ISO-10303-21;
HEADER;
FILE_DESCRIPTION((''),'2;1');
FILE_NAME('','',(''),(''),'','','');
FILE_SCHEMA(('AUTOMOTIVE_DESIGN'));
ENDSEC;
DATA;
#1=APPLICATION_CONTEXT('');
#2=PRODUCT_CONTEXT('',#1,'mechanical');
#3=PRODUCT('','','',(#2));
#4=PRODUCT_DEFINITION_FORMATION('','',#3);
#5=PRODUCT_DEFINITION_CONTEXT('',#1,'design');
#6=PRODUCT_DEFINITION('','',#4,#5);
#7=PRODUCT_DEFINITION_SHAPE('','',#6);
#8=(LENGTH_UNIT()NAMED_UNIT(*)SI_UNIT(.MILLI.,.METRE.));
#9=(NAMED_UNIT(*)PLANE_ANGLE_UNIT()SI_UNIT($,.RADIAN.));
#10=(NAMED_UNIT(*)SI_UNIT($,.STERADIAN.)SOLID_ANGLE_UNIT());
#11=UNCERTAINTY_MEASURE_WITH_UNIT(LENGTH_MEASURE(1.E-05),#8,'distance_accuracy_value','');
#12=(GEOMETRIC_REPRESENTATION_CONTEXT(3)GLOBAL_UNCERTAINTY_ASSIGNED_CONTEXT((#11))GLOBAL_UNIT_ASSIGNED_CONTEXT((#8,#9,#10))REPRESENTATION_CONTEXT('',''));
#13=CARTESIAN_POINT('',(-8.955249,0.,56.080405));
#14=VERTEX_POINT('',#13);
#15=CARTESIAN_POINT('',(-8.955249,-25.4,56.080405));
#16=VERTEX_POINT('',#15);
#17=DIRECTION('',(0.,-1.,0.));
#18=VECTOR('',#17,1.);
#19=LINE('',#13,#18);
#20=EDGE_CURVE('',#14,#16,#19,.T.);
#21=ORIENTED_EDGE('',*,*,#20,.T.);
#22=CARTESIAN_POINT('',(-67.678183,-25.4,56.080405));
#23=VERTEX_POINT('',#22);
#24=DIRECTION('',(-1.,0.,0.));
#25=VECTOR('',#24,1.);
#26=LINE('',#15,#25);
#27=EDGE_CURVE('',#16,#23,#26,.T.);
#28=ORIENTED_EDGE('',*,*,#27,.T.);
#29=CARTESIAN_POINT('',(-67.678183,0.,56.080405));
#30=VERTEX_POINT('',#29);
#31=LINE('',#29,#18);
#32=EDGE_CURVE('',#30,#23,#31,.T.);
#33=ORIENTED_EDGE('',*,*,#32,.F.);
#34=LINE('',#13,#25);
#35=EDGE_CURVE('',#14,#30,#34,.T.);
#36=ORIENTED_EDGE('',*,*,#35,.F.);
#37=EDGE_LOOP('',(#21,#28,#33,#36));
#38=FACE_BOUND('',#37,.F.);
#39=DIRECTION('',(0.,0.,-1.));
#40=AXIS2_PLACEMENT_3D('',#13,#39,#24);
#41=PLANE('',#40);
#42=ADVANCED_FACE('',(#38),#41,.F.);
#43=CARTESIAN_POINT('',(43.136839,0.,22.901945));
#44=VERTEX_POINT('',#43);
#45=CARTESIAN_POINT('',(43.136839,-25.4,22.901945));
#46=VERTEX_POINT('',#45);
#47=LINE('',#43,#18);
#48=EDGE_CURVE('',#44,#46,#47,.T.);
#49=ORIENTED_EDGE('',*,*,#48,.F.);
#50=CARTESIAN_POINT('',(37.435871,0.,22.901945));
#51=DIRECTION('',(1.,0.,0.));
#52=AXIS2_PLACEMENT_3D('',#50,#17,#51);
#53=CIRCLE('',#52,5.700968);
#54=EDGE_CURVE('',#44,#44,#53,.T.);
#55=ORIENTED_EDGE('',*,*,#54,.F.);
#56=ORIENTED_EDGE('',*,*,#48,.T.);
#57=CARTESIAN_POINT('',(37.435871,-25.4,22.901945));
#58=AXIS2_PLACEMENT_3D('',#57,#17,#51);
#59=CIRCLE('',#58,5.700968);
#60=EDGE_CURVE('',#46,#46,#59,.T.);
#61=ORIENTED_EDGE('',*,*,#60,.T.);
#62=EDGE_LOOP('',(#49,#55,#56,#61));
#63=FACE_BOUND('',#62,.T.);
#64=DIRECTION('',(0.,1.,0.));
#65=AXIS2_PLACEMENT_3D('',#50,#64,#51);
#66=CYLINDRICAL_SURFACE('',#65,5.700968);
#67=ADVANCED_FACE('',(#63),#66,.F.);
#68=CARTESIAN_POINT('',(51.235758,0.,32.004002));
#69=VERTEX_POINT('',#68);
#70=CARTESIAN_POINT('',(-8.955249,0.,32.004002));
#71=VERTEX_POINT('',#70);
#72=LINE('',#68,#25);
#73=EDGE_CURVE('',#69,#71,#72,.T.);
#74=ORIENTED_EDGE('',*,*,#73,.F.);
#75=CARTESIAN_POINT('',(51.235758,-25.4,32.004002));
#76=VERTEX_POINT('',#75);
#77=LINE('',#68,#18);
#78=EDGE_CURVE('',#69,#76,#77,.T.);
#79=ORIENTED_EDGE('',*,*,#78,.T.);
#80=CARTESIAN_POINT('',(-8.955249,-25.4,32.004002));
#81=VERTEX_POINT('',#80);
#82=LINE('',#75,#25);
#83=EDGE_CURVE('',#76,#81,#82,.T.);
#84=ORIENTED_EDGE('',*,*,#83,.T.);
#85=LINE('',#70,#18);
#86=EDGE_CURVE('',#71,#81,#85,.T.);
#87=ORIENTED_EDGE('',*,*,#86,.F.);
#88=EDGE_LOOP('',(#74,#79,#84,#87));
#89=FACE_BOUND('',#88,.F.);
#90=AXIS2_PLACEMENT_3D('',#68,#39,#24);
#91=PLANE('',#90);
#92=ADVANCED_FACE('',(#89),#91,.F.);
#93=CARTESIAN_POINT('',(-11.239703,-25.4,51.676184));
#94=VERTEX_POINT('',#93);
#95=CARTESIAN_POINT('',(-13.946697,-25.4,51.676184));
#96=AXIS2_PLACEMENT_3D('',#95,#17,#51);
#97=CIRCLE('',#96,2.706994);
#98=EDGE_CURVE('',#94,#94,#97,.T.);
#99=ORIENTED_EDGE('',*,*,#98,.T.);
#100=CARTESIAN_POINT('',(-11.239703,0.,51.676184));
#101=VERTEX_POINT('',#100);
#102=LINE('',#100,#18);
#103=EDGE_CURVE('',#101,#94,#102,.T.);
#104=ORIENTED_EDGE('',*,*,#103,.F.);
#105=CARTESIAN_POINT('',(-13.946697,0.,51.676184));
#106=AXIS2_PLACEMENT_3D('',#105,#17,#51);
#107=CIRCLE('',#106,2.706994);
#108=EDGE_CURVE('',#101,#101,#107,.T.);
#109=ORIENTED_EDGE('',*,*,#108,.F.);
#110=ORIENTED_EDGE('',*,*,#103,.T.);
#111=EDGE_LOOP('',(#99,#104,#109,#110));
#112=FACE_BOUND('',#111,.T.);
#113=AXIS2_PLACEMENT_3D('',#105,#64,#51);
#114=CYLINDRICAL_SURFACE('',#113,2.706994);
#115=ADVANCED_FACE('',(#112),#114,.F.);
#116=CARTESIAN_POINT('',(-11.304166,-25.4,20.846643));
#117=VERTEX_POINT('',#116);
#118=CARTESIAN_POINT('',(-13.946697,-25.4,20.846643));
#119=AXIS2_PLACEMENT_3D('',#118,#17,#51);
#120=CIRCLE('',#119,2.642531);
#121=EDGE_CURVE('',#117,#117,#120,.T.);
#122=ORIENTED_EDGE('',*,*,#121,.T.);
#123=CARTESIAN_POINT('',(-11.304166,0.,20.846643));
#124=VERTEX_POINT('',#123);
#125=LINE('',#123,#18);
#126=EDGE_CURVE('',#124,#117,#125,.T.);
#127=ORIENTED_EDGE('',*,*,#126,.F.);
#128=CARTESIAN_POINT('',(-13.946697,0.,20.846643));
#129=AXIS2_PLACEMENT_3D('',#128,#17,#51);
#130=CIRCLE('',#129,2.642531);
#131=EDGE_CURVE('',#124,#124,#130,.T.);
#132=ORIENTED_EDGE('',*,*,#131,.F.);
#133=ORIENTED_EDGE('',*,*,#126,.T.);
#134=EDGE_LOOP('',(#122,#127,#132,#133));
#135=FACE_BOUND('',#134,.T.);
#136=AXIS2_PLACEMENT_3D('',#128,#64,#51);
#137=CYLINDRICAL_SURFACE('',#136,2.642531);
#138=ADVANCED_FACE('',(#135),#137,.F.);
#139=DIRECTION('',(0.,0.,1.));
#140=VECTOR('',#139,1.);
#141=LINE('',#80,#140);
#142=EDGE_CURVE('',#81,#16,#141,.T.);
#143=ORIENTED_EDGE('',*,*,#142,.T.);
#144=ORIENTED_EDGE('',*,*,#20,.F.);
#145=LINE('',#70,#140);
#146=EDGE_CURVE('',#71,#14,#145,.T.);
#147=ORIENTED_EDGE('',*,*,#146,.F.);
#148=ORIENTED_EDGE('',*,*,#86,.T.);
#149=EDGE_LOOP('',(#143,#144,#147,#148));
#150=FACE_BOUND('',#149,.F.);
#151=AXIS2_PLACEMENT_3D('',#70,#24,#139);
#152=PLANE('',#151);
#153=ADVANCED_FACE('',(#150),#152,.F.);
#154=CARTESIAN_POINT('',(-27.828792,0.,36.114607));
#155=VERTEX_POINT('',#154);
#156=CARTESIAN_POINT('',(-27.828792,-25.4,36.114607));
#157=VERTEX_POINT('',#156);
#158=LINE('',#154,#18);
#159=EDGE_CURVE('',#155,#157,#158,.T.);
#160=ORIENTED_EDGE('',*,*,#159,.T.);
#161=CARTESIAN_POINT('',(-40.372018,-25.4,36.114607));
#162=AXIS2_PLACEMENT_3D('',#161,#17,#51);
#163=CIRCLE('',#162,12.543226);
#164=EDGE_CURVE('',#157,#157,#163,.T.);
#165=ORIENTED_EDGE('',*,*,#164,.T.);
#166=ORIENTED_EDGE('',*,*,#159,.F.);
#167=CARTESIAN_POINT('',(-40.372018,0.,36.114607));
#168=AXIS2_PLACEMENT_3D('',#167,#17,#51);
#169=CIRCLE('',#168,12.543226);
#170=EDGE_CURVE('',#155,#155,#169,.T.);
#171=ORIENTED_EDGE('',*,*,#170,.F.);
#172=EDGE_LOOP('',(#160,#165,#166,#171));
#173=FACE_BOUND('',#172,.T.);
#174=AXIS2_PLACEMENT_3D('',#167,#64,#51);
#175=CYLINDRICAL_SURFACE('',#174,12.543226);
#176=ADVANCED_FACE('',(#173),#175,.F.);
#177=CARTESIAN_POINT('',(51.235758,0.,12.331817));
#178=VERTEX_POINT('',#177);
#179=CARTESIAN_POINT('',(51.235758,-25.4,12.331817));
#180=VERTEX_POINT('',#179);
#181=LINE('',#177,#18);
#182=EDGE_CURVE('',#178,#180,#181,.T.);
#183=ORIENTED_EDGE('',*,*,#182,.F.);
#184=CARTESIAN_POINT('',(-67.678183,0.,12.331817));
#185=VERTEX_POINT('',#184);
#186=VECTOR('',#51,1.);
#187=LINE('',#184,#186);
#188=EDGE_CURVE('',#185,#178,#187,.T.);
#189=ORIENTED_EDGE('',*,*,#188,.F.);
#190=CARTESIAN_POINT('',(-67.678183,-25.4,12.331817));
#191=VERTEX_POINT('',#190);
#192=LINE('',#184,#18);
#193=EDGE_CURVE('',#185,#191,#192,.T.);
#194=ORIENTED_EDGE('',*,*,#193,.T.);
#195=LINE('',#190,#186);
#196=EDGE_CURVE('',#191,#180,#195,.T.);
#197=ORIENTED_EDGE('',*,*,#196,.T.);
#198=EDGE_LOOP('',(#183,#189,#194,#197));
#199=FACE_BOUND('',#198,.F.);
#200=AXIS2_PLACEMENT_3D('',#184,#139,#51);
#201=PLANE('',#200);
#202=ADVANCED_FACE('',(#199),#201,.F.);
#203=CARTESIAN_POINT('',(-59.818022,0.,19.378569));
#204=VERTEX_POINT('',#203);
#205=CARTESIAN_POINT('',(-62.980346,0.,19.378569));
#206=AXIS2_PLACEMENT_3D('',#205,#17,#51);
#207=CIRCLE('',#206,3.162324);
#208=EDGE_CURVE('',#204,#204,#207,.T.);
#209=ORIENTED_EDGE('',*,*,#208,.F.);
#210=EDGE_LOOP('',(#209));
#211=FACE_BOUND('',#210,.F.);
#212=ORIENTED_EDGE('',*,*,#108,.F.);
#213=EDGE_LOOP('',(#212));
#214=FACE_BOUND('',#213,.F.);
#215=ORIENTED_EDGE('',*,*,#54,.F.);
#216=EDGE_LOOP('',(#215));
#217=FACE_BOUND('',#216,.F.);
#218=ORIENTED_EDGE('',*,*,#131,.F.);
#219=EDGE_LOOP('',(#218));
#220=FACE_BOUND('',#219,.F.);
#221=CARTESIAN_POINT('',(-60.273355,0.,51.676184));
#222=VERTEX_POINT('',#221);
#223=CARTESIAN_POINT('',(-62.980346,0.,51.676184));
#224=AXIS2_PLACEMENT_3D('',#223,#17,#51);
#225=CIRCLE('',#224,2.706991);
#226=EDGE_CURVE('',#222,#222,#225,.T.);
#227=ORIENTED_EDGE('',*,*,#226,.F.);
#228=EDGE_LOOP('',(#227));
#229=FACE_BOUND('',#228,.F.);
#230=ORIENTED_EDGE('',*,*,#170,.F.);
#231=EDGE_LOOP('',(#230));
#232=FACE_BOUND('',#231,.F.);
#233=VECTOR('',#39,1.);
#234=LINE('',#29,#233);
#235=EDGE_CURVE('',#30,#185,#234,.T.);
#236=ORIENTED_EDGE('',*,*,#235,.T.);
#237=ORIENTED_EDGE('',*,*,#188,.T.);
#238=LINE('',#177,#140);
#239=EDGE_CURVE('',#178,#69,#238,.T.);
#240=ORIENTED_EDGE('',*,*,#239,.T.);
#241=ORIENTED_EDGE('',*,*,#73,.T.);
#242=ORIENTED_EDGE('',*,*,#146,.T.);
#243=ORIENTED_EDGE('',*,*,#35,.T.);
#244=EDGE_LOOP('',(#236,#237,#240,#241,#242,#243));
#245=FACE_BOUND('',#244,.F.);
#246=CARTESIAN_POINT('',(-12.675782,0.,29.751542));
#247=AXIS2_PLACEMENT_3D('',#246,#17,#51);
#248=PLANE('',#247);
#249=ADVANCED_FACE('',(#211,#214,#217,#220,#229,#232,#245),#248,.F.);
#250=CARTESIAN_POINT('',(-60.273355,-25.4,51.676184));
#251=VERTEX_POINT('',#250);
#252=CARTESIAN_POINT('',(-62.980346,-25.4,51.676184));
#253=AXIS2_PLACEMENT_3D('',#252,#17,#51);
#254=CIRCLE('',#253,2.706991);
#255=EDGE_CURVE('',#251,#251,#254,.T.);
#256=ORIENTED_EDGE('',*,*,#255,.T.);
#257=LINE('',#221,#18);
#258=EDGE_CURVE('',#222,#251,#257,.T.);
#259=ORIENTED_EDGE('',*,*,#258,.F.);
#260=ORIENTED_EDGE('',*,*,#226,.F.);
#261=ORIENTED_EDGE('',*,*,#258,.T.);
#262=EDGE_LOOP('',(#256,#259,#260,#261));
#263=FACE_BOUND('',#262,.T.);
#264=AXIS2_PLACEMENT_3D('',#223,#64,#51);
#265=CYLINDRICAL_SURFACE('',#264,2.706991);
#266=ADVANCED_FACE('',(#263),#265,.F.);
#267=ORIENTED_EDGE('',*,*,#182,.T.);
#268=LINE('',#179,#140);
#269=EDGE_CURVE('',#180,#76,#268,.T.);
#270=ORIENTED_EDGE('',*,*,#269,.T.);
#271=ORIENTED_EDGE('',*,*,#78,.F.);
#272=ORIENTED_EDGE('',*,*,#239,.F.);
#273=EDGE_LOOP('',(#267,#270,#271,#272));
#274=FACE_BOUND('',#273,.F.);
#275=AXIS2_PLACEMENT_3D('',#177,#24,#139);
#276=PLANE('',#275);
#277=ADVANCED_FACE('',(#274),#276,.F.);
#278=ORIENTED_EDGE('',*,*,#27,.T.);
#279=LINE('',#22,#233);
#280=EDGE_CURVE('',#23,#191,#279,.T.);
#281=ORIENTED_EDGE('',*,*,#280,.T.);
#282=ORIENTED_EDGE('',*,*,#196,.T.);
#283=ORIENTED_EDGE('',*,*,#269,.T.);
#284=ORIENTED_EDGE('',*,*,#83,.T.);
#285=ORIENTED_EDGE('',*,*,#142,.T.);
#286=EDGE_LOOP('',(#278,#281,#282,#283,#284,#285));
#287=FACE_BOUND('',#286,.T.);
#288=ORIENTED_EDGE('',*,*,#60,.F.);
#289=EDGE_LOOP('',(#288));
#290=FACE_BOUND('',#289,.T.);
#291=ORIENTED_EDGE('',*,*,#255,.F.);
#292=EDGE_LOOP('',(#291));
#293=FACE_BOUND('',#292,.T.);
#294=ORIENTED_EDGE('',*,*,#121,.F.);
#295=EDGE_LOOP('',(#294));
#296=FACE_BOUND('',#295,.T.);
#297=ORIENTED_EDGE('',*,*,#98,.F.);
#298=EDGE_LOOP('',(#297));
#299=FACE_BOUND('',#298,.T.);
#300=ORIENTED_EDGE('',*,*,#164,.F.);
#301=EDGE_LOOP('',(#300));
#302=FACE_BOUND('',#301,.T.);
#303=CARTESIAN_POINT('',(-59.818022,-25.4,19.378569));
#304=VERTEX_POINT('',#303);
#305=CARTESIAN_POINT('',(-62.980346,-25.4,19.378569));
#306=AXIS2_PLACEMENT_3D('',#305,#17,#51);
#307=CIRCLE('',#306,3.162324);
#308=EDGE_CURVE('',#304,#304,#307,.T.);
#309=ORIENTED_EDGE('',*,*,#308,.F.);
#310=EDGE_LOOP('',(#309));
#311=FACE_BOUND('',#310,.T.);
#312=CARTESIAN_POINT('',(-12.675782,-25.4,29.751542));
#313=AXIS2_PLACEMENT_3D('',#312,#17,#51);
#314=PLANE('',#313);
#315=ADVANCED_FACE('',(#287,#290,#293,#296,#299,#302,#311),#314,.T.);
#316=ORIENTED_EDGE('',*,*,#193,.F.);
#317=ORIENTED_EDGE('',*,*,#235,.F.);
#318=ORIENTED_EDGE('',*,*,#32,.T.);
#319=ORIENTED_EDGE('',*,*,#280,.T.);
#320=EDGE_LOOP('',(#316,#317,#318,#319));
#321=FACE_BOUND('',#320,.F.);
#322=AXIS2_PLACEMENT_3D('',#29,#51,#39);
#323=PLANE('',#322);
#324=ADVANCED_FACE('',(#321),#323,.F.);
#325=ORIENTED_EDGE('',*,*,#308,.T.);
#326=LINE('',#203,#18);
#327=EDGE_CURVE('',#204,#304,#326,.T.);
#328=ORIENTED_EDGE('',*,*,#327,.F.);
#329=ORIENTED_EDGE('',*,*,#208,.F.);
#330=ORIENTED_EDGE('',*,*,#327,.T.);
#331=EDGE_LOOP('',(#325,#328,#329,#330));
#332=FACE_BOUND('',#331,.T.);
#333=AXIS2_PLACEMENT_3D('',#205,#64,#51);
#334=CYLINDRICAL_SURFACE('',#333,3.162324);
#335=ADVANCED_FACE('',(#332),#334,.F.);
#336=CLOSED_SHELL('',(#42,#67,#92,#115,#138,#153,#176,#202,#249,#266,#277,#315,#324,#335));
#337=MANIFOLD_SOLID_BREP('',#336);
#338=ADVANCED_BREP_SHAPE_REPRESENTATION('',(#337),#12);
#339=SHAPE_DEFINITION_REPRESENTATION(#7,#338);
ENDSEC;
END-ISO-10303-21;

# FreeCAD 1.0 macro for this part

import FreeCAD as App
import Part
import Sketcher
from FreeCAD import Vector
Q = App.Units.Quantity


def add_polygon(sketch, points):
    """Adds a closed chain of lines whose ends are joined by coincident constraints."""
    first, n = sketch.GeometryCount, len(points)
    for a, b in zip(points, points[1:] + points[:1]):
        sketch.addGeometry(Part.LineSegment(App.Vector(*a, 0), App.Vector(*b, 0)), False)
    for i in range(n):
        sketch.addConstraint(Sketcher.Constraint("Coincident", first + i, 2, first + (i + 1) % n, 1))

doc = App.newDocument("Part")
body = doc.addObject("PartDesign::Body", "Body")

# Sketch on XZ plane
sketch1 = doc.addObject("Sketcher::SketchObject", "Sketch")
body.addObject(sketch1)
sketch1.AttachmentSupport = (doc.XZ_Plane, [""])
sketch1.MapMode = "FlatFace"
add_polygon(sketch1, [(-9, 56.1), (-67.7, 56.1), (-67.7, 12.3), (51.2, 12.3), (51.2, 32), (-9, 32)])  # lines 0-5
sketch1.addGeometry(Part.Circle(Vector(-63, 19.4, 0), Vector(0, 0, 1), 3.2), False)  # 6
sketch1.addGeometry(Part.Circle(Vector(-13.9, 20.8, 0), Vector(0, 0, 1), 2.6), False)  # 7
sketch1.addGeometry(Part.Circle(Vector(37.4, 22.9, 0), Vector(0, 0, 1), 5.7), False)  # 8
sketch1.addGeometry(Part.Circle(Vector(-40.4, 36.1, 0), Vector(0, 0, 1), 12.5), False)  # 9
sketch1.addGeometry(Part.Circle(Vector(-63, 51.7, 0), Vector(0, 0, 1), 2.7), False)  # 10
sketch1.addGeometry(Part.Circle(Vector(-13.9, 51.7, 0), Vector(0, 0, 1), 2.7), False)  # 11
sketch1.addConstraint([
    Sketcher.Constraint("Horizontal", 0),
    Sketcher.Constraint("Vertical", 1),
    Sketcher.Constraint("Horizontal", 2),
    Sketcher.Constraint("Vertical", 3),
    Sketcher.Constraint("Horizontal", 4),
    Sketcher.Constraint("Vertical", 5),
    Sketcher.Constraint("Horizontal", 10, 3, 11, 3),
    Sketcher.Constraint("Vertical", 6, 3, 10, 3),
    Sketcher.Constraint("Vertical", 7, 3, 11, 3),
    Sketcher.Constraint("DistanceY", -1, 1, 3, 2, Q("1.2600001 in")),
    Sketcher.Constraint("Diameter", 6, 6.324648),
    Sketcher.Constraint("Diameter", 7, 5.285062),
    Sketcher.Constraint("Diameter", 8, 11.401936),
    Sketcher.Constraint("Diameter", 9, 25.086452),
    Sketcher.Constraint("Diameter", 10, 5.413982),
    Sketcher.Constraint("Diameter", 11, 5.413988),
    Sketcher.Constraint("DistanceX", 2, 1, 2, 2, 118.913941),
    Sketcher.Constraint("DistanceX", 0, 2, 0, 1, 58.722934),
    Sketcher.Constraint("DistanceY", 1, 2, 1, 1, 43.748588),
    Sketcher.Constraint("DistanceY", 3, 1, 3, 2, 19.672185),
    Sketcher.Constraint("DistanceY", -1, 1, 6, 3, 19.378569),
    Sketcher.Constraint("DistanceX", -1, 1, 8, 3, 37.435871),
    Sketcher.Constraint("DistanceX", 4, 2, -1, 1, 8.955249),
    Sketcher.Constraint("DistanceX", 6, 3, 7, 3, 49.033649),
    Sketcher.Constraint("DistanceX", 6, 3, 9, 3, 22.608328),
    Sketcher.Constraint("DistanceY", 6, 3, 9, 3, 16.736038),
    Sketcher.Constraint("DistanceX", 9, 3, 8, 3, 77.807889),
    Sketcher.Constraint("DistanceY", 8, 3, 9, 3, 13.212662),
    Sketcher.Constraint("DistanceY", 7, 3, 10, 3, 30.829541),
    Sketcher.Constraint("DistanceY", 8, 3, 10, 3, 28.774239),
])
pad1 = doc.addObject("PartDesign::Pad", "Pad")
body.addObject(pad1)
pad1.Profile = sketch1
pad1.Length = Q("1 in")

doc.recompute()
